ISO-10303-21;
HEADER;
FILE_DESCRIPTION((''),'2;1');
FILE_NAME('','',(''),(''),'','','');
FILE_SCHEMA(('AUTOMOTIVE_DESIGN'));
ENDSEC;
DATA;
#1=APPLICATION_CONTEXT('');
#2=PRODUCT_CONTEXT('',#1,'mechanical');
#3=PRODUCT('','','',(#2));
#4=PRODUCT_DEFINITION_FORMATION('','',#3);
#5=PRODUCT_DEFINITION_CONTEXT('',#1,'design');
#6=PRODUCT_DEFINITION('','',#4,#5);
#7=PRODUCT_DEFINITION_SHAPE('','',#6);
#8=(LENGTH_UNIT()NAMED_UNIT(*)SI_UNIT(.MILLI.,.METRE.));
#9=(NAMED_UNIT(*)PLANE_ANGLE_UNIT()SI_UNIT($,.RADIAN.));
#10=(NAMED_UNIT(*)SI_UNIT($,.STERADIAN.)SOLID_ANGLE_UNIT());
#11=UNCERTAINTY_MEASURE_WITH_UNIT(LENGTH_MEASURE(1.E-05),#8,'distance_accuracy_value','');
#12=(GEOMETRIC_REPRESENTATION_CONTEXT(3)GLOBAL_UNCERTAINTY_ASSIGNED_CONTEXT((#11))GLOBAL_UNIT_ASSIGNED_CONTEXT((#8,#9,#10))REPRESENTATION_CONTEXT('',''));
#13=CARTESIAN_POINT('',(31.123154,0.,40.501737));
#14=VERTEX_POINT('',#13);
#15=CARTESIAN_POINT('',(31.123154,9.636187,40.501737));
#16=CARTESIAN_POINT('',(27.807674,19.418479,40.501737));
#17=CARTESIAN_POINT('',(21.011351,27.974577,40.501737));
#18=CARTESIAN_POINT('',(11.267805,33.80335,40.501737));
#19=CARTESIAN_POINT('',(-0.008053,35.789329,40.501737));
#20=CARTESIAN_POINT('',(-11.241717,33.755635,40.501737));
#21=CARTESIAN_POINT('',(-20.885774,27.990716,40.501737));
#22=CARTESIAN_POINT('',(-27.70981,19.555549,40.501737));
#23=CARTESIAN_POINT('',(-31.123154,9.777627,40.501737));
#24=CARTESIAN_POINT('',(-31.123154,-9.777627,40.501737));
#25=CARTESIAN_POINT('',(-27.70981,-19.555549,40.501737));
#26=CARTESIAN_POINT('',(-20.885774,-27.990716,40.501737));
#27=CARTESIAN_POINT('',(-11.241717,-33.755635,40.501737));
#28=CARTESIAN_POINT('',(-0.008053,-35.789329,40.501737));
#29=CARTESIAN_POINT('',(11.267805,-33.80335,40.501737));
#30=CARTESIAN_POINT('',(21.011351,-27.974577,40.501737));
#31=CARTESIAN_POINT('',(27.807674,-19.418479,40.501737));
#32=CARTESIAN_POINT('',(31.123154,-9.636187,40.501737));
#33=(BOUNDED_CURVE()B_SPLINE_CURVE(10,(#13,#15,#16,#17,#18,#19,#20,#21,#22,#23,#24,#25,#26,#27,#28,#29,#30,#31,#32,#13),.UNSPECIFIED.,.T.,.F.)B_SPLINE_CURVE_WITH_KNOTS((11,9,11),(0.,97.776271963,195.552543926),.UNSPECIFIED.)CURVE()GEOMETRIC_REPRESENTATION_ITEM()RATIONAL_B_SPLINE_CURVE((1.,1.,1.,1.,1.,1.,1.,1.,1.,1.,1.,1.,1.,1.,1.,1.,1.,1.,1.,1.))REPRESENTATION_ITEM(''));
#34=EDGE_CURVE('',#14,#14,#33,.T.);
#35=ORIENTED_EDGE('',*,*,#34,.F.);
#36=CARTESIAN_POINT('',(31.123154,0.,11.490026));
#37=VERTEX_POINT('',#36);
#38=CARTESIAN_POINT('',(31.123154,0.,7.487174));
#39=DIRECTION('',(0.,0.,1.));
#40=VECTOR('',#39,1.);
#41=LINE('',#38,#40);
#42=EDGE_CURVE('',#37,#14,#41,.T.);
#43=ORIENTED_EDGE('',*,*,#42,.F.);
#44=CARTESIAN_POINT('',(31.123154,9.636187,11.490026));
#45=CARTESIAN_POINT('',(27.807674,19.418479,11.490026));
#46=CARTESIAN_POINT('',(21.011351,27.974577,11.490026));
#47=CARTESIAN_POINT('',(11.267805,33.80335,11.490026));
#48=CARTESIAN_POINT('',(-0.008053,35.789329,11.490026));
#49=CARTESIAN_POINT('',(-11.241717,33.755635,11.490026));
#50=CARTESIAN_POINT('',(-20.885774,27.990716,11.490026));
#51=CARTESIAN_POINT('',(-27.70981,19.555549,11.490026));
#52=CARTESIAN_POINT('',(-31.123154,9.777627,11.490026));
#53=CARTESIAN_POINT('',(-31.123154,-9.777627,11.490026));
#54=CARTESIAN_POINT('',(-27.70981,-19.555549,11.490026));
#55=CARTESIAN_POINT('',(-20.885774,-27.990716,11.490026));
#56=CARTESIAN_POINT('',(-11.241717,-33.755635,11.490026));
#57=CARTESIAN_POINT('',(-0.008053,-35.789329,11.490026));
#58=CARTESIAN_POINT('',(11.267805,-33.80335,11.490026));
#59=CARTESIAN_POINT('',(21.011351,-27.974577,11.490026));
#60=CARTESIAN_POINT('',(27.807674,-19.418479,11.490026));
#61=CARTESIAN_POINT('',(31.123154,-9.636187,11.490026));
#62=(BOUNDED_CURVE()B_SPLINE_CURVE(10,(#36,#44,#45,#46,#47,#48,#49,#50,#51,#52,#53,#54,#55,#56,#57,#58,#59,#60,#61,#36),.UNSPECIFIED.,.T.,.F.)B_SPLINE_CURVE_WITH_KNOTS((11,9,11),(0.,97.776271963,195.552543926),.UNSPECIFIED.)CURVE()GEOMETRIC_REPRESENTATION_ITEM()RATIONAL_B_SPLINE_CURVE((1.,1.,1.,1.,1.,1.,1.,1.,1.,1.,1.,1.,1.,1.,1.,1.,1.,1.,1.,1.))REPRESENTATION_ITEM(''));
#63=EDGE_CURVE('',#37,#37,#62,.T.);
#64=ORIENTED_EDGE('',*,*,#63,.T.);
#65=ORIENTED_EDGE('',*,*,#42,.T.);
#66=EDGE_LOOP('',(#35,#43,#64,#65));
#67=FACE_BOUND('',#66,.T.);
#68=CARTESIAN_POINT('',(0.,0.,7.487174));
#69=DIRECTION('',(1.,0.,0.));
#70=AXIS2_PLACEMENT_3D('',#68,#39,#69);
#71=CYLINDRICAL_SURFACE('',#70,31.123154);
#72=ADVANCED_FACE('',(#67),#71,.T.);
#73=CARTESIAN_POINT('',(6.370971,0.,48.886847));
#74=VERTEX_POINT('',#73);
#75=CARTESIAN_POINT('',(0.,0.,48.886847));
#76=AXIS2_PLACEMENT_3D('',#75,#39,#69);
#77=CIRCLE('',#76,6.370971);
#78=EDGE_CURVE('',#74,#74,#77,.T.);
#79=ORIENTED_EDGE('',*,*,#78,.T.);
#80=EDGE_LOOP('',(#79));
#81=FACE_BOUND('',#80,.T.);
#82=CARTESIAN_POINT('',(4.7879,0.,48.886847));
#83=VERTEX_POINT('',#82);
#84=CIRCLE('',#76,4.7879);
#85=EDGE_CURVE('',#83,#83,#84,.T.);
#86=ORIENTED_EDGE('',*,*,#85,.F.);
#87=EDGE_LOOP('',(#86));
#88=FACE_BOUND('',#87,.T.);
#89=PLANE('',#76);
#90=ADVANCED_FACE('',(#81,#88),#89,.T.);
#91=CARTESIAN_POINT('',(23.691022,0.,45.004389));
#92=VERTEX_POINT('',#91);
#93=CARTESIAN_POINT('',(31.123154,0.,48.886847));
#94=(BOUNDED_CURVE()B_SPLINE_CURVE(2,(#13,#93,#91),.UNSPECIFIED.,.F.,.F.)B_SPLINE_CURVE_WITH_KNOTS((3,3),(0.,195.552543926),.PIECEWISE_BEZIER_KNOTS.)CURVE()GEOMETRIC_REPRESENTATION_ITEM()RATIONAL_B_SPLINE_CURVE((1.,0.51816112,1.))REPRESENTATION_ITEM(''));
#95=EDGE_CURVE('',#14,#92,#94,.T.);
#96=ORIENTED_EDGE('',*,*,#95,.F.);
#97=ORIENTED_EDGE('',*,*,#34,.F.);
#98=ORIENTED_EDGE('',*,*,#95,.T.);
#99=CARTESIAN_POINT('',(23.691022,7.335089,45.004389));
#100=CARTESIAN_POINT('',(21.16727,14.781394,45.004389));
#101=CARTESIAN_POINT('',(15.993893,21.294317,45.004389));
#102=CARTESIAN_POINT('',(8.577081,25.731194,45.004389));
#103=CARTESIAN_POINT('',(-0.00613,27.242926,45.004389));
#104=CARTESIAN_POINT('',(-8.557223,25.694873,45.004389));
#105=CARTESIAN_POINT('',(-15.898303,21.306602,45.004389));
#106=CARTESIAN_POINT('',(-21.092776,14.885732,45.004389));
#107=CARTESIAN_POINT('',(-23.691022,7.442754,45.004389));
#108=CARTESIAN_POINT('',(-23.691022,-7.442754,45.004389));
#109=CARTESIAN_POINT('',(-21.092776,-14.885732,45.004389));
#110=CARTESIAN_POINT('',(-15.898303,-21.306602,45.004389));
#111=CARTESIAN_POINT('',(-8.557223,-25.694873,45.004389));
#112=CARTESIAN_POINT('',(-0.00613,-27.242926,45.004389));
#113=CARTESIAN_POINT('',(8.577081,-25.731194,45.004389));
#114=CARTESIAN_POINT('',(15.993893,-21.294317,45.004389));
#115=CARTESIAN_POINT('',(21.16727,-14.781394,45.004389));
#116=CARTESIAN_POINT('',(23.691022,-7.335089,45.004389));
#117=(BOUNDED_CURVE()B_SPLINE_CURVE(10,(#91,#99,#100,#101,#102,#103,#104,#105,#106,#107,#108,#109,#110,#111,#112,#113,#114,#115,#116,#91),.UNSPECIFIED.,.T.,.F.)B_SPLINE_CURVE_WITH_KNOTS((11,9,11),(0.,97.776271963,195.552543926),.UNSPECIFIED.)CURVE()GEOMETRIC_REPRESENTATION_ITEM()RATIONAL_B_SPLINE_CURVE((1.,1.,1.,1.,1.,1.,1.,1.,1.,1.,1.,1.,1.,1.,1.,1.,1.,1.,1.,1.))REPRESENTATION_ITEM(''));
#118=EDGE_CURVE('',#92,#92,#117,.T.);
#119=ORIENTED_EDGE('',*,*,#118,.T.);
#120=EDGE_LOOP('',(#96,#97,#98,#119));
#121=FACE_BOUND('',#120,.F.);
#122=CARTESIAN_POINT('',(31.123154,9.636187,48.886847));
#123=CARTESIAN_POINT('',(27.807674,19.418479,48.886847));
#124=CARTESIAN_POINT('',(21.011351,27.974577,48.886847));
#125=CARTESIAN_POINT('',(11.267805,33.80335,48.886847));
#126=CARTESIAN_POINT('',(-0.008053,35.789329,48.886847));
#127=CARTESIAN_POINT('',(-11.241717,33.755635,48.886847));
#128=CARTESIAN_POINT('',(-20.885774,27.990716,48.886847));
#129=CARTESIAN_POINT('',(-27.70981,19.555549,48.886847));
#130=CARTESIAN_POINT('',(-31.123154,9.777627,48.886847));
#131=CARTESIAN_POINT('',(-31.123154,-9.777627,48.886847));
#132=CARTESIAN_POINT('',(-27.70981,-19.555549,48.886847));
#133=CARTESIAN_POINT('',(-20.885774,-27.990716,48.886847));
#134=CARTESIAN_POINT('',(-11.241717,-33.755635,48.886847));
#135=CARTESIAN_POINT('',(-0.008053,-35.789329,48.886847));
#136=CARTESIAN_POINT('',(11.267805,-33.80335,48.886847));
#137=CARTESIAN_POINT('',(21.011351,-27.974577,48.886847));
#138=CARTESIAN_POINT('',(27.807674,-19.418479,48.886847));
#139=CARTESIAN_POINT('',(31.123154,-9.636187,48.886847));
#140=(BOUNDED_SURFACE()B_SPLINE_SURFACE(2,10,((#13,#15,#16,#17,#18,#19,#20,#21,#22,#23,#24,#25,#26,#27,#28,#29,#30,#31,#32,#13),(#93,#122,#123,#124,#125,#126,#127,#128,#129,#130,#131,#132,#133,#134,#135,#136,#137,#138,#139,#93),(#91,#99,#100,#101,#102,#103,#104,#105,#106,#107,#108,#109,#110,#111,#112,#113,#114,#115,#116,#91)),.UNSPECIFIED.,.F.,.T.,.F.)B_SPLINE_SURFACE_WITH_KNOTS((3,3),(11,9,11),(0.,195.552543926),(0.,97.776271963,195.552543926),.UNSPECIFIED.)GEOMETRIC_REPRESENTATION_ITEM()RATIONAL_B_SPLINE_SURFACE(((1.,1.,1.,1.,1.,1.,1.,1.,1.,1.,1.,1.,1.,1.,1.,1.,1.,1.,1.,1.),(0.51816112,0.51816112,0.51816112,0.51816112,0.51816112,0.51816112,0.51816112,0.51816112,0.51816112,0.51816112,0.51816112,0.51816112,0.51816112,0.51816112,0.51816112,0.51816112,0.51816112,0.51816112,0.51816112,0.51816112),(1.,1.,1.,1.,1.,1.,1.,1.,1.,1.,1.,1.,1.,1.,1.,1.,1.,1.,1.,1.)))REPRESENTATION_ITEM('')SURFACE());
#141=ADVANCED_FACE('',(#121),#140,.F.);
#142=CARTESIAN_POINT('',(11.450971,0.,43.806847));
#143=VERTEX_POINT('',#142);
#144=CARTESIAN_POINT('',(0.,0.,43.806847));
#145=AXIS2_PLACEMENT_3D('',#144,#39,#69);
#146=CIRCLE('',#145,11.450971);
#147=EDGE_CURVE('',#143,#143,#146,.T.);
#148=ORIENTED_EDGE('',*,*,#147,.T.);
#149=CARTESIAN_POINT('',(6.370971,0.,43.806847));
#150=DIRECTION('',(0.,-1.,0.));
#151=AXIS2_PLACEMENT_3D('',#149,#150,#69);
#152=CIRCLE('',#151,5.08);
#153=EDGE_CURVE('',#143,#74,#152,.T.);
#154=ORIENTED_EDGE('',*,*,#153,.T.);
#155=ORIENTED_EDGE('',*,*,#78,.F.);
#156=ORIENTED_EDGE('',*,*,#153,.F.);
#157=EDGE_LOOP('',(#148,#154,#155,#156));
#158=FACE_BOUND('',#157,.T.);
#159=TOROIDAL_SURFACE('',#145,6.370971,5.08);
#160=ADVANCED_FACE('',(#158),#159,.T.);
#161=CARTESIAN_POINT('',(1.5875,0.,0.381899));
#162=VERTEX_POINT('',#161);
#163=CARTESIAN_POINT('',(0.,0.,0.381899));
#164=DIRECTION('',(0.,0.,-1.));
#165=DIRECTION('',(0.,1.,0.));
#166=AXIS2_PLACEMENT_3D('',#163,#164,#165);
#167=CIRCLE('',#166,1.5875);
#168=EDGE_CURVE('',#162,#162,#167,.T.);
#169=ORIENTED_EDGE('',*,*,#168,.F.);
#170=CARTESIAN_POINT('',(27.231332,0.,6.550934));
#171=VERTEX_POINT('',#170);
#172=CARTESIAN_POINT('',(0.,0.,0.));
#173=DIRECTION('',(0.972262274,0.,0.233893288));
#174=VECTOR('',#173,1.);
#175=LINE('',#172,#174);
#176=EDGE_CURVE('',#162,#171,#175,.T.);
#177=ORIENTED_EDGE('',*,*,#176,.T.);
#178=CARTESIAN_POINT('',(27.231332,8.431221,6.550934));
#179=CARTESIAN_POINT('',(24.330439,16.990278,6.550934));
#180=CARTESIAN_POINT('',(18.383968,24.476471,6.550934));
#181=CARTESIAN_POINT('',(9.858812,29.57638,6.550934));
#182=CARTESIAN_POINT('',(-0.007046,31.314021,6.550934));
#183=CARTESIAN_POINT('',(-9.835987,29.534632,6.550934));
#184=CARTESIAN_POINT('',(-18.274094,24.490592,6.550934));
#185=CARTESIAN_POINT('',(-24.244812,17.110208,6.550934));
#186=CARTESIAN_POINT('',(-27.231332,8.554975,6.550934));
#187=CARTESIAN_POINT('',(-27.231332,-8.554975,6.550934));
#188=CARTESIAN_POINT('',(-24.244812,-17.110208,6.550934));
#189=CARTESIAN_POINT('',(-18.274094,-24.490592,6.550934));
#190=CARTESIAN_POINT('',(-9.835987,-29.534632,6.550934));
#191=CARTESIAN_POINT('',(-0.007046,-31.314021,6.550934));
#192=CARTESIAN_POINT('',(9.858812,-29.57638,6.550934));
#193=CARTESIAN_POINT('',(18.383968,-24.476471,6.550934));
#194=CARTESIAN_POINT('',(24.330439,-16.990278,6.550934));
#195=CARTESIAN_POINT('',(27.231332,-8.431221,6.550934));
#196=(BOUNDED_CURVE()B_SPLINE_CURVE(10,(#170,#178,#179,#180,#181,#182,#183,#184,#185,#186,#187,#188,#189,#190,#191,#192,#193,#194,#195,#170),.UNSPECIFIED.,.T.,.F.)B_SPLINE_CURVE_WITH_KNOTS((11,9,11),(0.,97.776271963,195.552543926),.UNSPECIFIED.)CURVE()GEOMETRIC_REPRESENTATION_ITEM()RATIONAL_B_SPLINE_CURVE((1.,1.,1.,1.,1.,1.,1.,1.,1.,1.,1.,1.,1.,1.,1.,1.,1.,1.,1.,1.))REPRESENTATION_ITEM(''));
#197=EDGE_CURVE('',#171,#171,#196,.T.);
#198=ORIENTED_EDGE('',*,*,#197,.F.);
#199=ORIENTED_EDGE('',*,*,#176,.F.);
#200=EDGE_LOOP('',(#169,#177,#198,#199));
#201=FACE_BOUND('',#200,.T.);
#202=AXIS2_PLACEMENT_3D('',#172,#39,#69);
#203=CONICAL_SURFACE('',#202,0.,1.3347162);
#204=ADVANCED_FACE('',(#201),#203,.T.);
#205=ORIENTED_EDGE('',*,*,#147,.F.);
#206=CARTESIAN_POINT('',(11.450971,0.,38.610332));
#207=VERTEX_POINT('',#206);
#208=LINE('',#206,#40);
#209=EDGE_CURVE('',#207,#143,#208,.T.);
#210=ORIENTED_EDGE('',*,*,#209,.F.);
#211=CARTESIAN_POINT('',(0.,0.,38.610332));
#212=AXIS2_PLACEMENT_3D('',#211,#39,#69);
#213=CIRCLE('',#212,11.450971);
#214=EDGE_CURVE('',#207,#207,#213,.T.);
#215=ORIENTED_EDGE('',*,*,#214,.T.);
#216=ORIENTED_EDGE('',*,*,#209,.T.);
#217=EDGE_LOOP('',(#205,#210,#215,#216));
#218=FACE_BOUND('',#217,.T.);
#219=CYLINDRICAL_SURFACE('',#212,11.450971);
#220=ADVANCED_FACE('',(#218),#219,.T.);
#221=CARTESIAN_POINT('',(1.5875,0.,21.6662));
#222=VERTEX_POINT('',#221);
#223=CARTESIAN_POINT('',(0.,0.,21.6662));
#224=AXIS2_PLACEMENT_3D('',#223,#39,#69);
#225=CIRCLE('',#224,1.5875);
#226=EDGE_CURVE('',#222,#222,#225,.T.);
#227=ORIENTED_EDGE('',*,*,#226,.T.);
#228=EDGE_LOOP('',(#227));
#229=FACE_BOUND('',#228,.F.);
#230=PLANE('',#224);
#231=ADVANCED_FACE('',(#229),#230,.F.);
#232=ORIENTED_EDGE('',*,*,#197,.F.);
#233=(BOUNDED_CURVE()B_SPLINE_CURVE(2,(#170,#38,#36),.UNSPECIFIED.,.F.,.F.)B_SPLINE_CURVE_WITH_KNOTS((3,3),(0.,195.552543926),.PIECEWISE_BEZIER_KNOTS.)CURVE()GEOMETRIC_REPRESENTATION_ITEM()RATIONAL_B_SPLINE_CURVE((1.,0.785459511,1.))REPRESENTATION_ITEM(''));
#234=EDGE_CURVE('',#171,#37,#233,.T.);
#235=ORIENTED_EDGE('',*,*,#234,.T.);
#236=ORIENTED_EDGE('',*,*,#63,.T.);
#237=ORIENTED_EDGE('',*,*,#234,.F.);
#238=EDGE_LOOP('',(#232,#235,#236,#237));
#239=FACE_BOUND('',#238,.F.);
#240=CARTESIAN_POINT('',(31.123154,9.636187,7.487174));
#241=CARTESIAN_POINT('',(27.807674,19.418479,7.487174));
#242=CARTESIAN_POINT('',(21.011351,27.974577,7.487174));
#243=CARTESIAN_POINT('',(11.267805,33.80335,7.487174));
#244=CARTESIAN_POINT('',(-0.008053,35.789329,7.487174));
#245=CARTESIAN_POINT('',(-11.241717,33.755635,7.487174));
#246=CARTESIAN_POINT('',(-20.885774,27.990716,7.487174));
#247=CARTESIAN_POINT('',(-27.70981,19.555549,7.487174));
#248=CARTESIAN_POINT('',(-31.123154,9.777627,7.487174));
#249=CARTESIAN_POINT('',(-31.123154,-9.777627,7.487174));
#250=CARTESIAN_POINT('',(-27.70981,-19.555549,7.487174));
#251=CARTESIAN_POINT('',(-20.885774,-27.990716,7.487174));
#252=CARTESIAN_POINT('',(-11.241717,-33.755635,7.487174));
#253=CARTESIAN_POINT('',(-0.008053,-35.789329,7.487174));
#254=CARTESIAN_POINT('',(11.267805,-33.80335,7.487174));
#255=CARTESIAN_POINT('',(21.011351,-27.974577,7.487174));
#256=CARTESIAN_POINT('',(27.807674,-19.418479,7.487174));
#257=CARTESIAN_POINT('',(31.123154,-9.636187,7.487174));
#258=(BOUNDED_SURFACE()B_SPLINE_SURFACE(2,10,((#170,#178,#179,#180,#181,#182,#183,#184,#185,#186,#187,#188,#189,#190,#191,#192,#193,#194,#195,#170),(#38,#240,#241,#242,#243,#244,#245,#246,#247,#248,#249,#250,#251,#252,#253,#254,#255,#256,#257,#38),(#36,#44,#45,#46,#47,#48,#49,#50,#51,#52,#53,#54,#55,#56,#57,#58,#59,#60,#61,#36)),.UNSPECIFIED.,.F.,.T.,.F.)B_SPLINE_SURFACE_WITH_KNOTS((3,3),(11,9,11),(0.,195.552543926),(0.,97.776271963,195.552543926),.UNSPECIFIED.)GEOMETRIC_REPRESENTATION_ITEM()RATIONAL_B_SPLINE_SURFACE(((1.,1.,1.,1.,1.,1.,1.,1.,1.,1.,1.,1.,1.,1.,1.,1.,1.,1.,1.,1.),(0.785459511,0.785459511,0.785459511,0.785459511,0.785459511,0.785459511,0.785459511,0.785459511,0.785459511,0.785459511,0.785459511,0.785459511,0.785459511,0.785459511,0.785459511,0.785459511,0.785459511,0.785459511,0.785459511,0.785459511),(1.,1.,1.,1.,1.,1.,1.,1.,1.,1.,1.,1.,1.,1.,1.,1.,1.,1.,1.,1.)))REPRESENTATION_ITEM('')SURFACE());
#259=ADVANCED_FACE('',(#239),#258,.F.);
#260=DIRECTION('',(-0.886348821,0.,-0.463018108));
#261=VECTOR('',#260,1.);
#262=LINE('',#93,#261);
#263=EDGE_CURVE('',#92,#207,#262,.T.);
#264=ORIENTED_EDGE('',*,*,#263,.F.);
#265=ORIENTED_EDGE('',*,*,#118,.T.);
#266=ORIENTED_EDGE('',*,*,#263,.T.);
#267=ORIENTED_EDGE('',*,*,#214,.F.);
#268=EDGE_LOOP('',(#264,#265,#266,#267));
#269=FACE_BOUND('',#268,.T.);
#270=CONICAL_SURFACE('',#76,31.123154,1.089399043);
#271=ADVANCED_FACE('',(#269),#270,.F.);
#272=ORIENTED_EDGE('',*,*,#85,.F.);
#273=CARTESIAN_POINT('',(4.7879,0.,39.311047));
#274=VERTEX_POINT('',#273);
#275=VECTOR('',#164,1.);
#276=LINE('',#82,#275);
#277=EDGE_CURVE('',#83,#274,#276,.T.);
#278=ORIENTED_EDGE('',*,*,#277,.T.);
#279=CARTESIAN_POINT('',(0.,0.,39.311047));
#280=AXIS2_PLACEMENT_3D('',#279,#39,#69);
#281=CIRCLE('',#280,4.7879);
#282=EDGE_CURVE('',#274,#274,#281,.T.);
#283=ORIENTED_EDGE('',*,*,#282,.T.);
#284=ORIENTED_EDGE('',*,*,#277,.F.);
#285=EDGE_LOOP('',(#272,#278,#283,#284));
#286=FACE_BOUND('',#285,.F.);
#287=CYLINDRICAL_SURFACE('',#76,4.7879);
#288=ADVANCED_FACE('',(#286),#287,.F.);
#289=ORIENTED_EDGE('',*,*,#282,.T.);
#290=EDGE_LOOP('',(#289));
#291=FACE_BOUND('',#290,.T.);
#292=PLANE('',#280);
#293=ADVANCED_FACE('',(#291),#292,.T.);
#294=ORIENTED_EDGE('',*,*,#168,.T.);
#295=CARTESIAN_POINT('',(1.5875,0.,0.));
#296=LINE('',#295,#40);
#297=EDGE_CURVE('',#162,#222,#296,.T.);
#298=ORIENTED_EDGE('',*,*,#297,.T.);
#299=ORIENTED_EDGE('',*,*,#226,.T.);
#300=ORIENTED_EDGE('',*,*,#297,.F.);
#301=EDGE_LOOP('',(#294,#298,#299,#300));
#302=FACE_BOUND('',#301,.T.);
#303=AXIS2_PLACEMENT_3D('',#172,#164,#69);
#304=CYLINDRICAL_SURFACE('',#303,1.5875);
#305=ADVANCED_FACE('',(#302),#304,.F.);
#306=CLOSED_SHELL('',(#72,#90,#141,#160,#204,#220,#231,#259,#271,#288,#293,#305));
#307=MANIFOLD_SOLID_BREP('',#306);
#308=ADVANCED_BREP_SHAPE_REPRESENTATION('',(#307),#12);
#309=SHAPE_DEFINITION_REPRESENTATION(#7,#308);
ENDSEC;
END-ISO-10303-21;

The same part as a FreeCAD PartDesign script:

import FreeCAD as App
import Part
import Sketcher
Q = App.Units.Quantity


def edges_at(feature, points):
    """Names of the edges that pass closest to the given points."""
    edges = feature.Shape.Edges
    near = lambda p: min(range(len(edges)), key=lambda i: edges[i].distToShape(Part.Vertex(*p))[0])
    return sorted({f"Edge{near(p) + 1}" for p in points})

doc = App.newDocument("Part")
params = doc.addObject("Spreadsheet::Sheet", "Params")
for row, (alias, value) in enumerate([
    ("revolution_angle", "360 deg"),
    ("sketch2_diameter", "0.377 in"),
    ("pocket1_length", "0.377 in"),
    ("fillet_radius", "0.2 in"),
    ("sketch3_diameter", "0.125 in"),
    ("pocket2_length", "0.853 in"),
], start=1):
    params.set(f"A{row}", alias)
    params.set(f"B{row}", "=" + value)
    params.setAlias(f"B{row}", alias)

body = doc.addObject("PartDesign::Body", "Body")

sketch1 = body.newObject("Sketcher::SketchObject", "Sketch")
sketch1.AttachmentSupport = (doc.getObject("XZ_Plane"), [""])
sketch1.MapMode = "FlatFace"
sketch1.addGeometry([
    Part.LineSegment(App.Vector(0, 49, 0), App.Vector(0, 0, 0)),
    Part.LineSegment(App.Vector(0, 0, 0), App.Vector(31, 7, 0)),
    Part.LineSegment(App.Vector(31, 7, 0), App.Vector(31, 49, 0)),
    Part.LineSegment(App.Vector(31, 49, 0), App.Vector(11, 39, 0)),
    Part.LineSegment(App.Vector(11, 39, 0), App.Vector(11, 49, 0)),
    Part.LineSegment(App.Vector(11, 49, 0), App.Vector(0, 49, 0)),
], False)
sketch1.addConstraint([
    Sketcher.Constraint("Coincident", 0, 2, 1, 1),
    Sketcher.Constraint("Coincident", 1, 2, 2, 1),
    Sketcher.Constraint("Coincident", 2, 2, 3, 1),
    Sketcher.Constraint("Coincident", 3, 2, 4, 1),
    Sketcher.Constraint("Coincident", 4, 2, 5, 1),
    Sketcher.Constraint("Coincident", 5, 2, 0, 1),
    Sketcher.Constraint("Vertical", 0),
    Sketcher.Constraint("Vertical", 2),
    Sketcher.Constraint("Vertical", 4),
    Sketcher.Constraint("Horizontal", 5),
    Sketcher.Constraint("Coincident", 0, 2, -1, 1),
    Sketcher.Constraint("Horizontal", 2, 2, 4, 2),
    Sketcher.Constraint("DistanceX", 5, 2, 5, 1, Q("11.450971 mm")),
    Sketcher.Constraint("Distance", 1, Q("32.011068 mm")),
    Sketcher.Constraint("Distance", 3, Q("22.194629 mm")),
    Sketcher.Constraint("DistanceY", 0, 2, 0, 1, Q("48.886847 mm")),
    Sketcher.Constraint("DistanceY", 2, 1, 2, 2, Q("41.399673 mm")),
])
revolution = body.newObject("PartDesign::Revolution", "Revolution")
revolution.Profile = sketch1
revolution.ReferenceAxis = (sketch1, ["V_Axis"])
revolution.setExpression("Angle", "Params.revolution_angle")

sketch2 = body.newObject("Sketcher::SketchObject", "Sketch001")
sketch2.AttachmentSupport = (doc.getObject("XY_Plane"), [""])
sketch2.MapMode = "FlatFace"
sketch2.AttachmentOffset = App.Placement(App.Vector(0, 0, 48.886847), App.Rotation())
sketch2.addGeometry(Part.Circle(App.Vector(0, 0, 0), App.Vector(0, 0, 1), 4.8), False)
sketch2.addConstraint([
    Sketcher.Constraint("Coincident", 0, 3, -1, 1),
    Sketcher.Constraint("Diameter", 0, Q("0.377 in")),
])
sketch2.setExpression("Constraints[1]", "Params.sketch2_diameter")
pocket1 = body.newObject("PartDesign::Pocket", "Pocket")
pocket1.Profile = sketch2
pocket1.setExpression("Length", "Params.pocket1_length")
doc.recompute()

fillet = body.newObject("PartDesign::Fillet", "Fillet")
fillet.Base = (pocket1, edges_at(pocket1, [
    (-31.123, 0, 7.487),
    (-31.123, 0, 48.887),
    (31.123, 0, 28.187),
    (-11.451, 0, 48.887),
]))
fillet.setExpression("Radius", "Params.fillet_radius")

sketch3 = body.newObject("Sketcher::SketchObject", "Sketch002")
sketch3.AttachmentSupport = (doc.getObject("XY_Plane"), [""])
sketch3.MapMode = "FlatFace"
sketch3.addGeometry(Part.Circle(App.Vector(0, 0, 0), App.Vector(0, 0, 1), 1.6), False)
sketch3.addConstraint([
    Sketcher.Constraint("Coincident", 0, 3, -1, 1),
    Sketcher.Constraint("Diameter", 0, Q("0.125 in")),
])
sketch3.setExpression("Constraints[1]", "Params.sketch3_diameter")
pocket2 = body.newObject("PartDesign::Pocket", "Pocket001")
pocket2.Profile = sketch3
pocket2.setExpression("Length", "Params.pocket2_length")
pocket2.Reversed = True

doc.recompute()
